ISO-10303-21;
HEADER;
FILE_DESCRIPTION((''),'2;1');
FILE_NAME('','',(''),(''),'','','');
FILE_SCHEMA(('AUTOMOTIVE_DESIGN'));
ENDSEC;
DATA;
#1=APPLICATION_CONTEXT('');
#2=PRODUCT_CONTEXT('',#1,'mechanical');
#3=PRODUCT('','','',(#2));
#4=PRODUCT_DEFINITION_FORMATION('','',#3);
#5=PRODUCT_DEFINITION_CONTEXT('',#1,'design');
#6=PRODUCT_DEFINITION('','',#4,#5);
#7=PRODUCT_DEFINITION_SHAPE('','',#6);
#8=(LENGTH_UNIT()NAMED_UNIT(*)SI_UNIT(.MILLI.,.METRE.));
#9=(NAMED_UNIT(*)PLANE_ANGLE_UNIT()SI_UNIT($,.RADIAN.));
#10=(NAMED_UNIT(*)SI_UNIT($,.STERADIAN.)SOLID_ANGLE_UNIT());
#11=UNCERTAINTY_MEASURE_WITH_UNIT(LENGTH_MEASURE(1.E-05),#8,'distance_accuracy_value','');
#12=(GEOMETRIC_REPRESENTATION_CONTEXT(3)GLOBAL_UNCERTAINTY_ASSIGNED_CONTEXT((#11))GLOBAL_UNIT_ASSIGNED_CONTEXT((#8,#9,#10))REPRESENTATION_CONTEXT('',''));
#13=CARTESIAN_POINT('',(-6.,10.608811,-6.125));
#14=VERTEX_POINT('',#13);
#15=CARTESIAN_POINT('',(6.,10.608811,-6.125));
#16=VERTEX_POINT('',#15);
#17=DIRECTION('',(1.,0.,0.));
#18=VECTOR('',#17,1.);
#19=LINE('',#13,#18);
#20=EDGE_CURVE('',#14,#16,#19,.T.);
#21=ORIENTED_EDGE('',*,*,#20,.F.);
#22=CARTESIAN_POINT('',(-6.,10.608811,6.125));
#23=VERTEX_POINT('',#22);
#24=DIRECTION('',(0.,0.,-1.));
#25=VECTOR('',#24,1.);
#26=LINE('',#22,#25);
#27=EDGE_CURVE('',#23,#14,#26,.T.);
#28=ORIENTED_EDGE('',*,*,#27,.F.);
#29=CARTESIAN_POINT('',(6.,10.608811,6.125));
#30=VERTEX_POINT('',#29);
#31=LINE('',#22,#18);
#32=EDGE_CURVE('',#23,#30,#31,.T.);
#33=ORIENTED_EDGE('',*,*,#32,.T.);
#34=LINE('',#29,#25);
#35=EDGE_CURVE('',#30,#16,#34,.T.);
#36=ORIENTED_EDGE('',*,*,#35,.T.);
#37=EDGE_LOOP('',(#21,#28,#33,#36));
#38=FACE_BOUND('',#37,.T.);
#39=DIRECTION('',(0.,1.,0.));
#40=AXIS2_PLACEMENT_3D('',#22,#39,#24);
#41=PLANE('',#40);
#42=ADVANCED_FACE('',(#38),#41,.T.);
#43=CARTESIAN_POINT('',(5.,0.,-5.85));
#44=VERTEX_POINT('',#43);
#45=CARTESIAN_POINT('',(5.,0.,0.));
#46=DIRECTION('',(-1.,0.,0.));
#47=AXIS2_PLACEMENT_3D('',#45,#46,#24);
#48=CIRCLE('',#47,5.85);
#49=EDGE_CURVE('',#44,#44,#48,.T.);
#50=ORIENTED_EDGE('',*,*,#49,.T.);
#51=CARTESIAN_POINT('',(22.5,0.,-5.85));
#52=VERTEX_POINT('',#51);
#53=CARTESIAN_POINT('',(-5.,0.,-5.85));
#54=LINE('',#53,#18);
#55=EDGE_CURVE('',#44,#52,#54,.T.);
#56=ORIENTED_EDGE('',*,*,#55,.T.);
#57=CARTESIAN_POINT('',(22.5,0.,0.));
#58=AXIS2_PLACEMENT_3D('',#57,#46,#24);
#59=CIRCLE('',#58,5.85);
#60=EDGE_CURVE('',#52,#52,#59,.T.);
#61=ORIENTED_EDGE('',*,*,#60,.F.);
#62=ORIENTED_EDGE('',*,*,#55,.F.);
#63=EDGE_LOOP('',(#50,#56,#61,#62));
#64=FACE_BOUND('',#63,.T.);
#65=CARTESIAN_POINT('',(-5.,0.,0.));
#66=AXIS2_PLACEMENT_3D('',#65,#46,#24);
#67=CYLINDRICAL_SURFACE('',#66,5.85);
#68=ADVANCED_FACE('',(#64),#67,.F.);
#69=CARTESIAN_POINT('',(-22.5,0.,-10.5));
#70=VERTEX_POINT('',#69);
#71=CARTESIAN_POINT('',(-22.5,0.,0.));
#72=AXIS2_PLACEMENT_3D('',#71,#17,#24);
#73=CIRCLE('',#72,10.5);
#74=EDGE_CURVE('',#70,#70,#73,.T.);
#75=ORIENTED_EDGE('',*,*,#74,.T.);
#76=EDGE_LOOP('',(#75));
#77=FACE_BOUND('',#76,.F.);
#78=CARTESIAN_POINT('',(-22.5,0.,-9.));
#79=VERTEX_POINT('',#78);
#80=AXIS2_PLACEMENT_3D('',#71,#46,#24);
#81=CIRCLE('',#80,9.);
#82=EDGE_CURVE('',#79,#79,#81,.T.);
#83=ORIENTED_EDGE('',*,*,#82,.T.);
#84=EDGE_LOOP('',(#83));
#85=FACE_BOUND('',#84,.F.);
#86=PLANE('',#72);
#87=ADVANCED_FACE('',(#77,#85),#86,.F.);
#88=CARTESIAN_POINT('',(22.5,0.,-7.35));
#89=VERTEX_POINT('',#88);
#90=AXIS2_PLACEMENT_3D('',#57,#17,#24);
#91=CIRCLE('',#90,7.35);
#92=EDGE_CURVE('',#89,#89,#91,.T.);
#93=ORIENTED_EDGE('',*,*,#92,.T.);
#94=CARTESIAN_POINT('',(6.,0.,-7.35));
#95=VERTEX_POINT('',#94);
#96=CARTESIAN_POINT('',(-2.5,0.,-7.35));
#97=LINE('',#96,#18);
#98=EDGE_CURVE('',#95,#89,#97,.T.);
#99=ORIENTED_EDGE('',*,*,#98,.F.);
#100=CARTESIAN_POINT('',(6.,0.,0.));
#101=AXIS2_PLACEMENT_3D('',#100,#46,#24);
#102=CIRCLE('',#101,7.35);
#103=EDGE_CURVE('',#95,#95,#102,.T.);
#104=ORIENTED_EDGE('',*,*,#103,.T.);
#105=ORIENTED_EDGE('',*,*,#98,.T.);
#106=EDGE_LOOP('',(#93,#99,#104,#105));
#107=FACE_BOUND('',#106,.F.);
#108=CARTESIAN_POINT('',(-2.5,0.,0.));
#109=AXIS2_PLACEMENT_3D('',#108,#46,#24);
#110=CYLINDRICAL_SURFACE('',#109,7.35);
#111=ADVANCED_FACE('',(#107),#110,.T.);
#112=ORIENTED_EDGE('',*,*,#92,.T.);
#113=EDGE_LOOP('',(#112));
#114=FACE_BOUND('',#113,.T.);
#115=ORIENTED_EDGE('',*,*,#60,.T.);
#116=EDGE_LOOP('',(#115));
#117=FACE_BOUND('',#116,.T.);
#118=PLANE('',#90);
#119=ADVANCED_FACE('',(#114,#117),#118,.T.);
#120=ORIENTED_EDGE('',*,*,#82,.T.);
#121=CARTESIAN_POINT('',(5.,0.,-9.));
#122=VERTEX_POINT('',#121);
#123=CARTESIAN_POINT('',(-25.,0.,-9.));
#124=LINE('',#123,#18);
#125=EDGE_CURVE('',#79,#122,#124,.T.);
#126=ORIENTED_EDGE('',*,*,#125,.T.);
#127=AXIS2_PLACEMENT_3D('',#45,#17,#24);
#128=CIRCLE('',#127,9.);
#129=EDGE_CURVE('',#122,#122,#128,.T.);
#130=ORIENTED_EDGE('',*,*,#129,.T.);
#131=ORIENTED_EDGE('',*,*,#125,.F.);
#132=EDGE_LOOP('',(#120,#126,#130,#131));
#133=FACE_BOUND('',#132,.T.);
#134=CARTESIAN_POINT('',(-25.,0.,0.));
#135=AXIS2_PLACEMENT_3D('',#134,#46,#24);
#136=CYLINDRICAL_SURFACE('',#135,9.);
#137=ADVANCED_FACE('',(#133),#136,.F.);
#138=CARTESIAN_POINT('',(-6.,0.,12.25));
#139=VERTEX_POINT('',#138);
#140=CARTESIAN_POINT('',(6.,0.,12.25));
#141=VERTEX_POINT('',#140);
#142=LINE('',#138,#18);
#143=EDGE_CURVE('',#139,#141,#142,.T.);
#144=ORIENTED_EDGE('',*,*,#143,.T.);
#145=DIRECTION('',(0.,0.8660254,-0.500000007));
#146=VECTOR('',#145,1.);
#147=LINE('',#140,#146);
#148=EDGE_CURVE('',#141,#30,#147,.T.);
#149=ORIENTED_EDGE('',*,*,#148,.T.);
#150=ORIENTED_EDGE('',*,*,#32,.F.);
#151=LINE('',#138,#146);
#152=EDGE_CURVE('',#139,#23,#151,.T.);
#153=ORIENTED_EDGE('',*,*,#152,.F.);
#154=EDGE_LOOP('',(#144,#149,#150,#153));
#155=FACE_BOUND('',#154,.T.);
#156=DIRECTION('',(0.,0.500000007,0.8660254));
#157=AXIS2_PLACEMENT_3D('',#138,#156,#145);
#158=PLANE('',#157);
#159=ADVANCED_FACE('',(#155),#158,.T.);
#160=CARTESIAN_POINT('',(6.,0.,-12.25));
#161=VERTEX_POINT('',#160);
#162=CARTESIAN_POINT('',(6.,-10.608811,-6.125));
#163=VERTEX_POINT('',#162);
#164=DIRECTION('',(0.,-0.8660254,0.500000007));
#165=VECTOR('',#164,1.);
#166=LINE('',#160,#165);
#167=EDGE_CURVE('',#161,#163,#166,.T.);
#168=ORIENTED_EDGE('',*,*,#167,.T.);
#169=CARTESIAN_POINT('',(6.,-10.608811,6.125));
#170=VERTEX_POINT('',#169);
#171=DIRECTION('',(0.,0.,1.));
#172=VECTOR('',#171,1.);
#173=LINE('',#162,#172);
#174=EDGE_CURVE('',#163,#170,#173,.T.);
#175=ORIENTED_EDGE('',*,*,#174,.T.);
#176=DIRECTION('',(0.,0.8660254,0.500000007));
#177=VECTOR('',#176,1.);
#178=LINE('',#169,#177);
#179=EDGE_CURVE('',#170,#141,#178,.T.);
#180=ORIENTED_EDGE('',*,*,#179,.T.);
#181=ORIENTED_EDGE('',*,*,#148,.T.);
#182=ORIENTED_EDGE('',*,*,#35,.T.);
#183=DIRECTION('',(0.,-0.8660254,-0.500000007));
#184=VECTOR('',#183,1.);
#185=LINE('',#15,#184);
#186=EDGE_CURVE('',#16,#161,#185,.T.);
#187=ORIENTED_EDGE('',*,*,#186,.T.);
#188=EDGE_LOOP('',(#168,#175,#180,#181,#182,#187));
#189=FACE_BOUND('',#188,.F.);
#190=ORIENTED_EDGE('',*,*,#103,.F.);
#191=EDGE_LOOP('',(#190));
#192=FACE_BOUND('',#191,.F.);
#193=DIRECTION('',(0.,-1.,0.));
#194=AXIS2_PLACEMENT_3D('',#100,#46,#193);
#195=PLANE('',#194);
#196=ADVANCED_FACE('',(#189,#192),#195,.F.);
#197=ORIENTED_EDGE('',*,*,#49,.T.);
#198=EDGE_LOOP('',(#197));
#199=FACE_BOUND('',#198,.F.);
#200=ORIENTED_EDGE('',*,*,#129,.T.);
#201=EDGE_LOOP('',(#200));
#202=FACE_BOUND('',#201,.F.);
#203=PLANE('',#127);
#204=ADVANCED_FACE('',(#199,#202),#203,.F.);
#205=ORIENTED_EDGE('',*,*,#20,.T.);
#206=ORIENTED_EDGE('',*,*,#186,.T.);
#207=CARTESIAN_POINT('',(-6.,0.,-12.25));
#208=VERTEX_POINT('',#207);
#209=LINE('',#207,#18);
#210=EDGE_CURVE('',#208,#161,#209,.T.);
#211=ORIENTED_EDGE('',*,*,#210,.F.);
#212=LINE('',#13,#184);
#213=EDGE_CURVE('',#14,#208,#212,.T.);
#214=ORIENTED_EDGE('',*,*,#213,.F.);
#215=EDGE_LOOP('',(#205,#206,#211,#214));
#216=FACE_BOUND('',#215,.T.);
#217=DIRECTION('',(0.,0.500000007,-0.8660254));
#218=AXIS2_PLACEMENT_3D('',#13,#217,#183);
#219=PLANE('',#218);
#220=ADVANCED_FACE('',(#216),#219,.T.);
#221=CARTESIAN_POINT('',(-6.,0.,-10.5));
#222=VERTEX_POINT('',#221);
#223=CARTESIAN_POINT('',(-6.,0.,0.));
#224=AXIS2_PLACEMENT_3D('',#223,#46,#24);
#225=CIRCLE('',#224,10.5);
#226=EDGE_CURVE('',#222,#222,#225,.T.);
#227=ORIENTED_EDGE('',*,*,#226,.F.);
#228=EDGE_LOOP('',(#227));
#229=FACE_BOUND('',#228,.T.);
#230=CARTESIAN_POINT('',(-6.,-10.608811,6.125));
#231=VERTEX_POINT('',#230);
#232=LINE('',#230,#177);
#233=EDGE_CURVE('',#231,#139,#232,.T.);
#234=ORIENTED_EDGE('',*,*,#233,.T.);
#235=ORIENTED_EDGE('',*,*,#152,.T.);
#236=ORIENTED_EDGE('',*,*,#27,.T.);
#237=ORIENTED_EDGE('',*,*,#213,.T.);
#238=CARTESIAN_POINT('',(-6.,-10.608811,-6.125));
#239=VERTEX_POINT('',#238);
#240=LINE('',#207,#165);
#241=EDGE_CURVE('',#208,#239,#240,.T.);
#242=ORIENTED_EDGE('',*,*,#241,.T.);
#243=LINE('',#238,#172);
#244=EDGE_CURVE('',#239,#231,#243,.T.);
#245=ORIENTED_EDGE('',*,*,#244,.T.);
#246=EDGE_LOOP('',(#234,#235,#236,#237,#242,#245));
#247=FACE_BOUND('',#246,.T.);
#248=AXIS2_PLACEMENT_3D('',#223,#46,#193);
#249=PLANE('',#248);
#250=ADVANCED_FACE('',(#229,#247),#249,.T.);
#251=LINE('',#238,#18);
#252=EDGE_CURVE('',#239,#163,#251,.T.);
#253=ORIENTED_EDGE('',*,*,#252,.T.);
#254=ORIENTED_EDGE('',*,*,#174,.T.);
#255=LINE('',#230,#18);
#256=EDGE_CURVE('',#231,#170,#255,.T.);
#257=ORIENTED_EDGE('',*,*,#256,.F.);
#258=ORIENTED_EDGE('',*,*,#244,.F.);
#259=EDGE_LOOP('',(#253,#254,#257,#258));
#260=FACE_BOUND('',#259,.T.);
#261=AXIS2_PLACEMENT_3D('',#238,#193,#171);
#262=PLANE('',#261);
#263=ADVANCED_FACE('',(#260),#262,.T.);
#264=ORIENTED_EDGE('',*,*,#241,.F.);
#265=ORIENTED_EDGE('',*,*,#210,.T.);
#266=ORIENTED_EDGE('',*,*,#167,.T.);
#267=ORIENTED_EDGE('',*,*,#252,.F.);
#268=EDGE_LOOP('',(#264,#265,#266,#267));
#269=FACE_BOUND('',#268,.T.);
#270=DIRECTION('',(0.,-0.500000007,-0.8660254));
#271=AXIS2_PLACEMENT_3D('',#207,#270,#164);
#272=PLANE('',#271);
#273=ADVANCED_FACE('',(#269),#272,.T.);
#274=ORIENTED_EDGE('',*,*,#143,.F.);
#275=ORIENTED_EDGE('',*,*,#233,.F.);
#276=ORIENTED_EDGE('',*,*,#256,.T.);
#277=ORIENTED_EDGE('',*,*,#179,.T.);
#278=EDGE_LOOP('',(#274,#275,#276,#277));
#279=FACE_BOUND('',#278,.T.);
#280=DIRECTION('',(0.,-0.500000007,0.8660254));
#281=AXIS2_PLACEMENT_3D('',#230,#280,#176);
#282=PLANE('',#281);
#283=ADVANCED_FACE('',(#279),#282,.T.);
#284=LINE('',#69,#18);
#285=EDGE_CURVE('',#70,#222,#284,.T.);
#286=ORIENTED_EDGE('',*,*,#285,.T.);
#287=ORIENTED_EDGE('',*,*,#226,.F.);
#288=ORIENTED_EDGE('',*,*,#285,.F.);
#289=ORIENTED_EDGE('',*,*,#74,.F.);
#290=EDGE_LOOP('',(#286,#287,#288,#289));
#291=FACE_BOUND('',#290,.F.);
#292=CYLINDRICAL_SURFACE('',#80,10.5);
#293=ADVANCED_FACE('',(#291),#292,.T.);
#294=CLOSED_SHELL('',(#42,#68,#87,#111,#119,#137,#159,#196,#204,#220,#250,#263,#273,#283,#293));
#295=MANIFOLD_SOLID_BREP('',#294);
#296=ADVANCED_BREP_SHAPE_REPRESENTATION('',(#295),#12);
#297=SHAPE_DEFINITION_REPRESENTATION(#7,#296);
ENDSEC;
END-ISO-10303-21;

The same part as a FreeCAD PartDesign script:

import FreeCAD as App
import Part
import Sketcher
from FreeCAD import Vector
Q = App.Units.Quantity


def add_polygon(sketch, points):
    """Adds a closed chain of lines whose ends are joined by coincident constraints."""
    first, n = sketch.GeometryCount, len(points)
    for a, b in zip(points, points[1:] + points[:1]):
        sketch.addGeometry(Part.LineSegment(App.Vector(*a, 0), App.Vector(*b, 0)), False)
    for i in range(n):
        sketch.addConstraint(Sketcher.Constraint("Coincident", first + i, 2, first + (i + 1) % n, 1))

doc = App.newDocument("Part")
body = doc.addObject("PartDesign::Body", "Body")

# Sketch on XY plane
sketch1 = body.newObject("Sketcher::SketchObject", "Sketch")
sketch1.AttachmentSupport = (doc.getObject("XY_Plane"), [""])
sketch1.MapMode = "FlatFace"
sketch1.AttachmentOffset = App.Placement(Vector(0, 0, -5), App.Rotation())
sketch1.addGeometry(Part.Circle(Vector(0, 0, 0), Vector(0, 0, 1), 6), False)
sketch1.addConstraint([
    Sketcher.Constraint("Coincident", 0, 3, -1, 1),
    Sketcher.Constraint("Diameter", 0, Q("11.7 mm")),
])
pad1 = body.newObject("PartDesign::Pad", "Pad")
pad1.Profile = sketch1
pad1.Length = 30
body2 = doc.addObject("PartDesign::Body", "Body001")

# Sketch on XY plane
sketch2 = body2.newObject("Sketcher::SketchObject", "Sketch001")
sketch2.AttachmentSupport = (doc.getObject("XY_Plane001"), [""])
sketch2.MapMode = "FlatFace"
sketch2.AttachmentOffset = App.Placement(Vector(0, 0, -25), App.Rotation())
sketch2.addGeometry(Part.Circle(Vector(0, 0, 0), Vector(0, 0, 1), 9), False)
sketch2.addConstraint([
    Sketcher.Constraint("Coincident", 0, 3, -1, 1),
    Sketcher.Constraint("Diameter", 0, Q("18 mm")),
])
pad2 = body2.newObject("PartDesign::Pad", "Pad001")
pad2.Profile = sketch2
pad2.Length = 30
doc.recompute()

boolean = body2.newObject("PartDesign::Boolean", "Boolean")
boolean.Type = "Fuse"
boolean.addObjects([body])
body3 = doc.addObject("PartDesign::Body", "Body002")

# Sketch on XY plane
sketch3 = body3.newObject("Sketcher::SketchObject", "Sketch002")
sketch3.AttachmentSupport = (doc.getObject("XY_Plane002"), [""])
sketch3.MapMode = "FlatFace"
sketch3.AttachmentOffset = App.Placement(Vector(0, 0, -2.5), App.Rotation())
sketch3.addGeometry(Part.Circle(Vector(0, 0, 0), Vector(0, 0, 1), 7), False)
sketch3.addConstraint([
    Sketcher.Constraint("Coincident", 0, 3, -1, 1),
    Sketcher.Constraint("Diameter", 0, Q("14.7 mm")),
])
pad3 = body3.newObject("PartDesign::Pad", "Pad002")
pad3.Profile = sketch3
pad3.Length = 25
body4 = doc.addObject("PartDesign::Body", "Body003")

# Sketch on XY plane
sketch4 = body4.newObject("Sketcher::SketchObject", "Sketch003")
sketch4.AttachmentSupport = (doc.getObject("XY_Plane003"), [""])
sketch4.MapMode = "FlatFace"
add_polygon(sketch4, [(6, 11), (12, 0), (6, -11), (-6, -11), (-12, 0), (-6, 11)])  # lines 0-5
sketch4.addConstraint([
    Sketcher.Constraint("Horizontal", 2),
    Sketcher.Constraint("Horizontal", 5),
    Sketcher.Constraint("Symmetric", 0, 2, 3, 2, -1, 1),
    Sketcher.Constraint("Symmetric", 1, 2, 4, 2, -1, 1),
    Sketcher.Constraint("PointOnObject", 0, 2, -1),
    Sketcher.Constraint("Parallel", 0, 3),
    Sketcher.Constraint("Vertical", 2, 2, 4, 2),
    Sketcher.Constraint("Angle", 0, Q("-60 deg")),
    Sketcher.Constraint("DistanceX", 2, 2, 2, 1, Q("12.25 mm")),
    Sketcher.Constraint("DistanceX", 3, 2, 0, 2, Q("24.5 mm")),
])
pad4 = body4.newObject("PartDesign::Pad", "Pad003")
pad4.Profile = sketch4
pad4.Length = 12
body5 = doc.addObject("PartDesign::Body", "Body004")
doc.recompute()

body4.Placement = App.Placement(Vector(0, 0, -6), App.Rotation(Vector(0, 0, 1), 0))
boolean2 = body5.newObject("PartDesign::Boolean", "Boolean001")
boolean2.Type = "Fuse"
boolean2.addObjects([body4])
body6 = doc.addObject("PartDesign::Body", "Body005")

# Sketch on XY plane
sketch5 = body6.newObject("Sketcher::SketchObject", "Sketch004")
sketch5.AttachmentSupport = (doc.getObject("XY_Plane005"), [""])
sketch5.MapMode = "FlatFace"
sketch5.AttachmentOffset = App.Placement(Vector(0, 0, -22.5), App.Rotation())
sketch5.addGeometry(Part.Circle(Vector(0, 0, 0), Vector(0, 0, 1), 10), False)
sketch5.addConstraint([
    Sketcher.Constraint("Coincident", 0, 3, -1, 1),
    Sketcher.Constraint("Diameter", 0, Q("21 mm")),
])
pad5 = body6.newObject("PartDesign::Pad", "Pad004")
pad5.Profile = sketch5
pad5.Length = 25
doc.recompute()

boolean3 = body6.newObject("PartDesign::Boolean", "Boolean002")
boolean3.Type = "Fuse"
boolean3.addObjects([body3])
doc.recompute()

boolean4 = body6.newObject("PartDesign::Boolean", "Boolean003")
boolean4.Type = "Fuse"
boolean4.addObjects([body5])
doc.recompute()

boolean5 = body6.newObject("PartDesign::Boolean", "Boolean004")
boolean5.Type = "Cut"
boolean5.addObjects([body2])
body7 = doc.addObject("PartDesign::Body", "Body006")
doc.recompute()

body6.Placement = App.Placement(Vector(0, 0, 0), App.Rotation(Vector(0, 1, 0), 90))
boolean6 = body7.newObject("PartDesign::Boolean", "Boolean005")
boolean6.Type = "Fuse"
boolean6.addObjects([body6])

doc.recompute()
